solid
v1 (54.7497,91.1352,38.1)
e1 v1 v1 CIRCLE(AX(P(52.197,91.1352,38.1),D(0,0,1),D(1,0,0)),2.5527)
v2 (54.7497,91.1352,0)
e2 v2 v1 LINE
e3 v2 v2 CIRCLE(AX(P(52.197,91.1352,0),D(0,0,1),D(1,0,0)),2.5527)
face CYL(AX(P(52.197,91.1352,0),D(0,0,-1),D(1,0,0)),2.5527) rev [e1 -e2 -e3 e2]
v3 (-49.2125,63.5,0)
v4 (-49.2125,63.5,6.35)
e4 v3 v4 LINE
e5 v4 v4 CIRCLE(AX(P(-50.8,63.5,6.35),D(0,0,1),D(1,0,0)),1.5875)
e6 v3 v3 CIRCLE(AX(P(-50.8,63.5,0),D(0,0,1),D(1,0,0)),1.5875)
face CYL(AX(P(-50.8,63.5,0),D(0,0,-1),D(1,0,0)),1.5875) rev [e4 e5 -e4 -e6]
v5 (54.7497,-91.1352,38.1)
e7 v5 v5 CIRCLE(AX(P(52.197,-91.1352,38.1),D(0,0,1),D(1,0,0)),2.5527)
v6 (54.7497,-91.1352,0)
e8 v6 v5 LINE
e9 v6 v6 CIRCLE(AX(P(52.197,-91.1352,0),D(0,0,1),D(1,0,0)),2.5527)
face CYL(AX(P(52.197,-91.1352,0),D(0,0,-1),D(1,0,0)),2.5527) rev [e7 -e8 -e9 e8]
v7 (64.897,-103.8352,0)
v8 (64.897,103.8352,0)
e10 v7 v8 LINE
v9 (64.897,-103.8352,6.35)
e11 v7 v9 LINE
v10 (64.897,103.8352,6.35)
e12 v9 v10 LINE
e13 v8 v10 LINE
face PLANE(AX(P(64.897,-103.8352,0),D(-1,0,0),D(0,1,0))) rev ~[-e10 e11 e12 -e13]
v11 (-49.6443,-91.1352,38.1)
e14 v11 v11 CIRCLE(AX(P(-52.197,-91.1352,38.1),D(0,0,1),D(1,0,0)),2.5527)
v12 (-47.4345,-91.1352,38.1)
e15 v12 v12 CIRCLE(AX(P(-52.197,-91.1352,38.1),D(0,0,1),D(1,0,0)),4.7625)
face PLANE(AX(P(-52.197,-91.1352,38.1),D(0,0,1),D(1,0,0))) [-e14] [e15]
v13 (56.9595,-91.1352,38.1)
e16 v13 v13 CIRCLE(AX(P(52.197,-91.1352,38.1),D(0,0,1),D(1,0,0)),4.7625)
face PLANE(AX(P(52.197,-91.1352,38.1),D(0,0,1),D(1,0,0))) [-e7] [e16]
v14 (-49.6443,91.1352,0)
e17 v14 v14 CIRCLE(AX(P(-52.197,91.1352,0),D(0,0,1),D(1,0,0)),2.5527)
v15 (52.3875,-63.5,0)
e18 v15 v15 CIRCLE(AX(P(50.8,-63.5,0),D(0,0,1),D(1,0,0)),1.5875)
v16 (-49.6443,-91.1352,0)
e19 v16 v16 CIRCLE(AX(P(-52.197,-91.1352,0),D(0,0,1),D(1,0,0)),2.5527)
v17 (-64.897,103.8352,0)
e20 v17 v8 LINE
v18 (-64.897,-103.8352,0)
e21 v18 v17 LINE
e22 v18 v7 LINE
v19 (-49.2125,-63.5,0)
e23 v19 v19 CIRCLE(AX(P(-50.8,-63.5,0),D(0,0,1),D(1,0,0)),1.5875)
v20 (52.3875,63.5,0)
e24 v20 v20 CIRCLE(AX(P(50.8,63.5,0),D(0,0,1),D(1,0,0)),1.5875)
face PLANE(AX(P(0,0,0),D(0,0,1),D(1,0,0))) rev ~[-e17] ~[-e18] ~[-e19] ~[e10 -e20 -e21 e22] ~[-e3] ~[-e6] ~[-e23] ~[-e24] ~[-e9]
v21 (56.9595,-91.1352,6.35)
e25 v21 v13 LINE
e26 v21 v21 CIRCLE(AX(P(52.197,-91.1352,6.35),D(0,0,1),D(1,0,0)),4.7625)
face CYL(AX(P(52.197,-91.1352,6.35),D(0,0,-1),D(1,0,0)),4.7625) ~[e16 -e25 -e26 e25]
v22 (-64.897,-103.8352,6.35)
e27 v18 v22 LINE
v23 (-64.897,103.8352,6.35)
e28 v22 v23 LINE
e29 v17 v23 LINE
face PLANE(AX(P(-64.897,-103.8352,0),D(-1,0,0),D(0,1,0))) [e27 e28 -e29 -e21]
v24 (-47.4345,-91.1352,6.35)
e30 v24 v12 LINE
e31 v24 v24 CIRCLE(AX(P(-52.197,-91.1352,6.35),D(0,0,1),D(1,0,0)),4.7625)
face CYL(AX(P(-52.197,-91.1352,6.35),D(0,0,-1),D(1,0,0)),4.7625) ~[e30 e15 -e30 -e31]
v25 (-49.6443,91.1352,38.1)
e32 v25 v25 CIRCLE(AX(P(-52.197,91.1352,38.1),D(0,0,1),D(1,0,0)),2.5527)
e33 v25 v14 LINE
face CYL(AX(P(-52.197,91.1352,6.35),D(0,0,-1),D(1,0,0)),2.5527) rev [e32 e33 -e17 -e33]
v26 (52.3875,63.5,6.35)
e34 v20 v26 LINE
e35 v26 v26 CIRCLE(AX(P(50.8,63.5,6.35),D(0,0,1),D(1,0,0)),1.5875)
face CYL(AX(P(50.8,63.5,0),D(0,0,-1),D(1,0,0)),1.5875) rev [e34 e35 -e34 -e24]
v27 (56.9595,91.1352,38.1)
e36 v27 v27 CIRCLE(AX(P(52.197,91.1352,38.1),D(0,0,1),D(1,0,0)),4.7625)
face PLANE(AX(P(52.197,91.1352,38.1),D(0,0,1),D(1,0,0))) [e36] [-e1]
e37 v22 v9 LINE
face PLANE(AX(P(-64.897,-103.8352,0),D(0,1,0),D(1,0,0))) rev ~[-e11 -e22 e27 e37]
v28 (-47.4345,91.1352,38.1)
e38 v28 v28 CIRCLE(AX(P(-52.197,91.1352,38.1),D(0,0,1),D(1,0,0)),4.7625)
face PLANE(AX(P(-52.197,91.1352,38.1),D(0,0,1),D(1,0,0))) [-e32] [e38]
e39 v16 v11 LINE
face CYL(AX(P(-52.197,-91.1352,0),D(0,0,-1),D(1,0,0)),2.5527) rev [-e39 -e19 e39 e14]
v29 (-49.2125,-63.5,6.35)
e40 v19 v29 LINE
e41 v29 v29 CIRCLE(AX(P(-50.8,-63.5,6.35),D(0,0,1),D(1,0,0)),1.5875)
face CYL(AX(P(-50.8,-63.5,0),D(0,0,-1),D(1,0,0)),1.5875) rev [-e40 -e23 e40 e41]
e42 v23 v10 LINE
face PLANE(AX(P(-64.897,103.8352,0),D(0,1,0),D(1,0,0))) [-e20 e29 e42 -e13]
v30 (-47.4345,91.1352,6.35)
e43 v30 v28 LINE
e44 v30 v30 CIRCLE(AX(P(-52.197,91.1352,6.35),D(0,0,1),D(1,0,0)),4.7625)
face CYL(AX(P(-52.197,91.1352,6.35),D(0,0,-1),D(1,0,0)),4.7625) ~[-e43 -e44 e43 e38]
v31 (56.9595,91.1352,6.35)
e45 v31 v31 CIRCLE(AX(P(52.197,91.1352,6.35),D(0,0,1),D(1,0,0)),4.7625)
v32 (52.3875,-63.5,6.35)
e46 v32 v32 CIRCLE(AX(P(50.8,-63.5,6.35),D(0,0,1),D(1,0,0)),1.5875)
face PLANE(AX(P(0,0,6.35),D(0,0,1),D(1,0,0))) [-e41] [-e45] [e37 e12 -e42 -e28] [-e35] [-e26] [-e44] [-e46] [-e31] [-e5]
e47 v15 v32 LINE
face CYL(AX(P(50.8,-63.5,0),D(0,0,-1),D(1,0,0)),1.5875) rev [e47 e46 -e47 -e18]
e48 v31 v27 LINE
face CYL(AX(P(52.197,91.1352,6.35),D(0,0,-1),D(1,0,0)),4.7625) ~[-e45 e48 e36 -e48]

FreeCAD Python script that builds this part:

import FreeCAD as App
import Part
import Sketcher
Q = App.Units.Quantity

doc = App.newDocument("Part")
body = doc.addObject("PartDesign::Body", "Body")

# Sketch on XY plane
sketch1 = body.newObject("Sketcher::SketchObject", "Sketch")
sketch1.AttachmentSupport = (doc.getObject("XY_Plane"), [""])
sketch1.MapMode = "FlatFace"
sketch1.addGeometry(Part.LineSegment(App.Vector(-64.9, 103.8, 0), App.Vector(-64.9, -103.8, 0)), False)
sketch1.addGeometry(Part.LineSegment(App.Vector(-64.9, -103.8, 0), App.Vector(64.9, -103.8, 0)), False)
sketch1.addGeometry(Part.LineSegment(App.Vector(64.9, -103.8, 0), App.Vector(64.9, 103.8, 0)), False)
sketch1.addGeometry(Part.LineSegment(App.Vector(64.9, 103.8, 0), App.Vector(-64.9, 103.8, 0)), False)
sketch1.addGeometry(Part.Circle(App.Vector(-52.2, -91.1, 0), App.Vector(0, 0, 1), 2.6), False)
sketch1.addGeometry(Part.Circle(App.Vector(-50.8, -63.5, 0), App.Vector(0, 0, 1), 1.6), False)
sketch1.addGeometry(Part.Circle(App.Vector(52.2, -91.1, 0), App.Vector(0, 0, 1), 2.6), False)
sketch1.addGeometry(Part.Circle(App.Vector(50.8, -63.5, 0), App.Vector(0, 0, 1), 1.6), False)
sketch1.addGeometry(Part.Circle(App.Vector(-50.8, 63.5, 0), App.Vector(0, 0, 1), 1.6), False)
sketch1.addGeometry(Part.Circle(App.Vector(-52.2, 91.1, 0), App.Vector(0, 0, 1), 2.6), False)
sketch1.addGeometry(Part.Circle(App.Vector(50.8, 63.5, 0), App.Vector(0, 0, 1), 1.6), False)
sketch1.addGeometry(Part.Circle(App.Vector(52.2, 91.1, 0), App.Vector(0, 0, 1), 2.6), False)
sketch1.addConstraint(Sketcher.Constraint("Coincident", 0, 2, 1, 1))
sketch1.addConstraint(Sketcher.Constraint("Coincident", 1, 2, 2, 1))
sketch1.addConstraint(Sketcher.Constraint("Coincident", 2, 2, 3, 1))
sketch1.addConstraint(Sketcher.Constraint("Coincident", 3, 2, 0, 1))
sketch1.addConstraint(Sketcher.Constraint("Vertical", 0))
sketch1.addConstraint(Sketcher.Constraint("Horizontal", 1))
sketch1.addConstraint(Sketcher.Constraint("Vertical", 2))
sketch1.addConstraint(Sketcher.Constraint("Horizontal", 3))
sketch1.addConstraint(Sketcher.Constraint("Equal", 4, 6))
sketch1.addConstraint(Sketcher.Constraint("Equal", 5, 7))
sketch1.addConstraint(Sketcher.Constraint("Equal", 7, 8))
sketch1.addConstraint(Sketcher.Constraint("Equal", 6, 9))
sketch1.addConstraint(Sketcher.Constraint("Equal", 8, 10))
sketch1.addConstraint(Sketcher.Constraint("Equal", 9, 11))
sketch1.addConstraint(Sketcher.Constraint("Symmetric", 7, 3, 8, 3, -1, 1))
sketch1.addConstraint(Sketcher.Constraint("Symmetric", 6, 3, 9, 3, -1, 1))
sketch1.addConstraint(Sketcher.Constraint("Symmetric", 5, 3, 10, 3, -1, 1))
sketch1.addConstraint(Sketcher.Constraint("Symmetric", 4, 3, 11, 3, -1, 1))
sketch1.addConstraint(Sketcher.Constraint("Symmetric", 0, 2, 2, 2, -1, 1))
sketch1.addConstraint(Sketcher.Constraint("Symmetric", 4, 3, 6, 3, -2))
sketch1.addConstraint(Sketcher.Constraint("Symmetric", 5, 3, 7, 3, -2))
sketch1.addConstraint(Sketcher.Constraint("Diameter", 4, Q("0.201 in")))
sketch1.addConstraint(Sketcher.Constraint("Diameter", 5, Q("0.125 in")))
sketch1.addConstraint(Sketcher.Constraint("DistanceX", 5, 3, -1, 1, Q("2 in")))
sketch1.addConstraint(Sketcher.Constraint("DistanceY", 5, 3, 8, 3, Q("5 in")))
sketch1.addConstraint(Sketcher.Constraint("DistanceX", 1, 1, 1, 2, Q("5.11 in")))
sketch1.addConstraint(Sketcher.Constraint("DistanceX", 0, 2, 4, 3, Q("0.5 in")))
sketch1.addConstraint(Sketcher.Constraint("DistanceY", 0, 2, 4, 3, Q("0.5 in")))
sketch1.addConstraint(Sketcher.Constraint("DistanceY", 0, 2, 0, 1, Q("8.176 in")))
pad1 = body.newObject("PartDesign::Pad", "Pad")
pad1.Profile = sketch1
pad1.Length = Q("0.25 in")

# Sketch on XY plane
sketch2 = body.newObject("Sketcher::SketchObject", "Sketch001")
sketch2.AttachmentSupport = (doc.getObject("XY_Plane"), [""])
sketch2.MapMode = "FlatFace"
sketch2.AttachmentOffset = App.Placement(App.Vector(0, 0, 0.25 * 25.4), App.Rotation())
sketch2.addGeometry(Part.Circle(App.Vector(-52.2, 91.1, 0), App.Vector(0, 0, 1), 4.8), False)
sketch2.addGeometry(Part.Circle(App.Vector(-52.2, 91.1, 0), App.Vector(0, 0, 1), 2.6), False)
sketch2.addGeometry(Part.Circle(App.Vector(52.2, 91.1, 0), App.Vector(0, 0, 1), 4.8), False)
sketch2.addGeometry(Part.Circle(App.Vector(52.2, 91.1, 0), App.Vector(0, 0, 1), 2.6), False)
sketch2.addGeometry(Part.Circle(App.Vector(52.2, -91.1, 0), App.Vector(0, 0, 1), 4.8), False)
sketch2.addGeometry(Part.Circle(App.Vector(52.2, -91.1, 0), App.Vector(0, 0, 1), 2.6), False)
sketch2.addGeometry(Part.Circle(App.Vector(-52.2, -91.1, 0), App.Vector(0, 0, 1), 4.8), False)
sketch2.addGeometry(Part.Circle(App.Vector(-52.2, -91.1, 0), App.Vector(0, 0, 1), 2.6), False)
sketch2.addConstraint(Sketcher.Constraint("Coincident", 1, 3, 0, 3))
sketch2.addConstraint(Sketcher.Constraint("Coincident", 3, 3, 2, 3))
sketch2.addConstraint(Sketcher.Constraint("Coincident", 5, 3, 4, 3))
sketch2.addConstraint(Sketcher.Constraint("Coincident", 7, 3, 6, 3))
sketch2.addConstraint(Sketcher.Constraint("Equal", 0, 2))
sketch2.addConstraint(Sketcher.Constraint("Equal", 1, 3))
sketch2.addConstraint(Sketcher.Constraint("Equal", 2, 4))
sketch2.addConstraint(Sketcher.Constraint("Equal", 3, 5))
sketch2.addConstraint(Sketcher.Constraint("Equal", 4, 6))
sketch2.addConstraint(Sketcher.Constraint("Equal", 5, 7))
sketch2.addConstraint(Sketcher.Constraint("Symmetric", 0, 3, 4, 3, -1, 1))
sketch2.addConstraint(Sketcher.Constraint("Symmetric", 2, 3, 6, 3, -1, 1))
sketch2.addConstraint(Sketcher.Constraint("Symmetric", 0, 3, 2, 3, -2))
sketch2.addConstraint(Sketcher.Constraint("Diameter", 0, Q("0.375 in")))
sketch2.addConstraint(Sketcher.Constraint("Diameter", 1, Q("0.201 in")))
sketch2.addConstraint(Sketcher.Constraint("DistanceX", 0, 3, 2, 3, Q("4.11 in")))
sketch2.addConstraint(Sketcher.Constraint("DistanceY", -1, 1, 0, 3, Q("3.588 in")))
pad2 = body.newObject("PartDesign::Pad", "Pad001")
pad2.Profile = sketch2
pad2.Length = Q("1.25 in")

doc.recompute()
